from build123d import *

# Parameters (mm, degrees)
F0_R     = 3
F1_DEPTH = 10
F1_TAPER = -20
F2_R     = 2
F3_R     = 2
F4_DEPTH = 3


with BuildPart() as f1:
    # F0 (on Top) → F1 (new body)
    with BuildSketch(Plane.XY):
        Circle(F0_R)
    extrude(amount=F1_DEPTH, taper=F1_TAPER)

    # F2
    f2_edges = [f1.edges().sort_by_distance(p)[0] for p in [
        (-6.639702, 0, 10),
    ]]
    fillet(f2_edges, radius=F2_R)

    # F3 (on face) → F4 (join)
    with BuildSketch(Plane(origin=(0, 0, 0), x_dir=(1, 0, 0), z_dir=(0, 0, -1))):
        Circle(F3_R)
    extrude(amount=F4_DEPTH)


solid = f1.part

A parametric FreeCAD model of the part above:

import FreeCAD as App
import Part
import Sketcher

V = App.Vector
Q = App.Units.Quantity


def edges_at(feature, points):
    """Names of the edges that pass closest to the given points."""
    edges = feature.Shape.Edges
    near = lambda p: min(range(len(edges)), key=lambda i: edges[i].distToShape(Part.Vertex(*p))[0])
    return sorted({f"Edge{near(p) + 1}" for p in points})

doc = App.newDocument("Part")
params = doc.addObject("Spreadsheet::Sheet", "Params")
for row, (alias, value) in enumerate([
    ("sketch1_diameter", "6 mm"),
    ("pad1_length", "10 mm"),
    ("pad1_taper", "20 deg"),
    ("fillet_radius", "2 mm"),
    ("sketch2_diameter", "4 mm"),
    ("pad2_length", "3 mm"),
], start=1):
    params.set(f"A{row}", alias)
    params.set(f"B{row}", "=" + value)
    params.setAlias(f"B{row}", alias)

body = doc.addObject("PartDesign::Body", "Body")

# Sketch on XY plane
sketch1 = body.newObject("Sketcher::SketchObject", "Sketch")
sketch1.AttachmentSupport = (doc.getObject("XY_Plane"), [""])
sketch1.MapMode = "FlatFace"
sketch1.addGeometry(Part.Circle(V(0, 0, 0), V(0, 0, 1), 3), False)
sketch1.addConstraint([
    Sketcher.Constraint("Coincident", 0, 3, -1, 1),
    Sketcher.Constraint("Diameter", 0, Q("6 mm")),
])
sketch1.setExpression("Constraints[1]", "Params.sketch1_diameter")
pad1 = body.newObject("PartDesign::Pad", "Pad")
pad1.Profile = sketch1
pad1.setExpression("Length", "Params.pad1_length")
pad1.setExpression("TaperAngle", "Params.pad1_taper")
doc.recompute()

fillet = body.newObject("PartDesign::Fillet", "Fillet")
fillet.Base = (pad1, edges_at(pad1, [(-6.64, 0, 10)]))
fillet.setExpression("Radius", "Params.fillet_radius")

# Sketch on XY plane
sketch2 = body.newObject("Sketcher::SketchObject", "Sketch001")
sketch2.AttachmentSupport = (doc.getObject("XY_Plane"), [""])
sketch2.MapMode = "FlatFace"
sketch2.addGeometry(Part.Circle(V(0, 0, 0), V(0, 0, 1), 2), False)
sketch2.addConstraint([
    Sketcher.Constraint("Coincident", 0, 3, -1, 1),
    Sketcher.Constraint("Diameter", 0, Q("4 mm")),
])
sketch2.setExpression("Constraints[1]", "Params.sketch2_diameter")
pad2 = body.newObject("PartDesign::Pad", "Pad001")
pad2.Profile = sketch2
pad2.setExpression("Length", "Params.pad2_length")
pad2.Reversed = True

doc.recompute()
